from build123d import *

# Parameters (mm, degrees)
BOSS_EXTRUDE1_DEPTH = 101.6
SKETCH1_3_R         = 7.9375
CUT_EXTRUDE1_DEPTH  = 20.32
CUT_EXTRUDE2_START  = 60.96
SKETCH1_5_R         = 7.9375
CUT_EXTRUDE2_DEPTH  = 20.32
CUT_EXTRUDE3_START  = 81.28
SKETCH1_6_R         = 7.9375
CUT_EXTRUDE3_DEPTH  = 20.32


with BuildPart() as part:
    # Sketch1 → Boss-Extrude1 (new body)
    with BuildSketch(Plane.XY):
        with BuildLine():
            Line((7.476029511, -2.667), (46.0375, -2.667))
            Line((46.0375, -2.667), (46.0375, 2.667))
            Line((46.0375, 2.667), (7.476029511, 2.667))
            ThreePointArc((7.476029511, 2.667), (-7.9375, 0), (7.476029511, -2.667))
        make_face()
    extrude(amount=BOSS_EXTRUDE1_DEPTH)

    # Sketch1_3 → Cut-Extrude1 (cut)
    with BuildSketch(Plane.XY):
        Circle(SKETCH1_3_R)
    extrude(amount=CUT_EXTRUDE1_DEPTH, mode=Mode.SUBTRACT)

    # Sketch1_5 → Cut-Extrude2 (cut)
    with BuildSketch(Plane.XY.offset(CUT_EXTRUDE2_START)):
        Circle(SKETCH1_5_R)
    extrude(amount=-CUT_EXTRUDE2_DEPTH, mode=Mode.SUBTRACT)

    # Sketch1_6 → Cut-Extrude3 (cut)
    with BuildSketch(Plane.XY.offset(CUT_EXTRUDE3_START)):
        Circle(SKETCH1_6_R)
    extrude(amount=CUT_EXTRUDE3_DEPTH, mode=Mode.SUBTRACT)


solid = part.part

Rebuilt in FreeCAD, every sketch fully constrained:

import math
import FreeCAD as App
import Part
import Sketcher

V = App.Vector
Q = App.Units.Quantity

doc = App.newDocument("Part")
body = doc.addObject("PartDesign::Body", "Body")

# Sketch on XY plane
sketch1 = body.newObject("Sketcher::SketchObject", "Sketch")
sketch1.AttachmentSupport = (doc.getObject("XY_Plane"), [""])
sketch1.MapMode = "FlatFace"
sketch1.addGeometry([
    Part.LineSegment(V(7.47603, -2.667, 0), V(46.0375, -2.667, 0)),
    Part.LineSegment(V(46.0375, -2.667, 0), V(46.0375, 2.667, 0)),
    Part.LineSegment(V(46.0375, 2.667, 0), V(7.47603, 2.667, 0)),
    Part.ArcOfCircle(Part.Circle(V(0, 0, 0), V(0, 0, 1), 7.9375), math.radians(19.633359), math.radians(340.366641)),
], False)
sketch1.addConstraint([
    Sketcher.Constraint("Coincident", 0, 2, 1, 1),
    Sketcher.Constraint("Coincident", 1, 2, 2, 1),
    Sketcher.Constraint("Coincident", 2, 2, 3, 1),
    Sketcher.Constraint("Coincident", 3, 2, 0, 1),
    Sketcher.Constraint("Horizontal", 0),
    Sketcher.Constraint("Vertical", 1),
    Sketcher.Constraint("Horizontal", 2),
    Sketcher.Constraint("Coincident", 3, 3, -1, 1),
    Sketcher.Constraint("Vertical", 2, 2, 3, 2),
    Sketcher.Constraint("Radius", 3, Q("0.3125 in")),
    Sketcher.Constraint("DistanceY", 1, 1, 1, 2, Q("0.21 in")),
    Sketcher.Constraint("DistanceX", -1, 1, 0, 2, Q("1.8125 in")),
])
pad1 = body.newObject("PartDesign::Pad", "Pad")
pad1.Profile = sketch1
pad1.Length = Q("4 in")

# Sketch on XY plane
sketch2 = body.newObject("Sketcher::SketchObject", "Sketch001")
sketch2.AttachmentSupport = (doc.getObject("XY_Plane"), [""])
sketch2.MapMode = "FlatFace"
sketch2.addGeometry(Part.Circle(V(0, 0, 0), V(0, 0, 1), 7.9375), False)
sketch2.addConstraint([
    Sketcher.Constraint("Coincident", 0, 3, -1, 1),
    Sketcher.Constraint("Diameter", 0, Q("0.625 in")),
])
pocket1 = body.newObject("PartDesign::Pocket", "Pocket")
pocket1.Profile = sketch2
pocket1.Length = Q("0.8 in")
pocket1.Reversed = True

# Sketch on XY plane
sketch3 = body.newObject("Sketcher::SketchObject", "Sketch002")
sketch3.AttachmentSupport = (doc.getObject("XY_Plane"), [""])
sketch3.MapMode = "FlatFace"
sketch3.AttachmentOffset = App.Placement(V(0, 0, 2.4 * 25.4), App.Rotation())
sketch3.addGeometry(Part.Circle(V(0, 0, 0), V(0, 0, 1), 7.9375), False)
sketch3.addConstraint([
    Sketcher.Constraint("Coincident", 0, 3, -1, 1),
    Sketcher.Constraint("Diameter", 0, Q("0.625 in")),
])
pocket2 = body.newObject("PartDesign::Pocket", "Pocket001")
pocket2.Profile = sketch3
pocket2.Length = Q("0.8 in")

# Sketch on XY plane
sketch4 = body.newObject("Sketcher::SketchObject", "Sketch003")
sketch4.AttachmentSupport = (doc.getObject("XY_Plane"), [""])
sketch4.MapMode = "FlatFace"
sketch4.AttachmentOffset = App.Placement(V(0, 0, 3.2 * 25.4), App.Rotation())
sketch4.addGeometry(Part.Circle(V(0, 0, 0), V(0, 0, 1), 7.9375), False)
sketch4.addConstraint([
    Sketcher.Constraint("Coincident", 0, 3, -1, 1),
    Sketcher.Constraint("Diameter", 0, Q("0.625 in")),
])
pocket3 = body.newObject("PartDesign::Pocket", "Pocket002")
pocket3.Profile = sketch4
pocket3.Length = Q("0.8 in")
pocket3.Reversed = True

doc.recompute()
